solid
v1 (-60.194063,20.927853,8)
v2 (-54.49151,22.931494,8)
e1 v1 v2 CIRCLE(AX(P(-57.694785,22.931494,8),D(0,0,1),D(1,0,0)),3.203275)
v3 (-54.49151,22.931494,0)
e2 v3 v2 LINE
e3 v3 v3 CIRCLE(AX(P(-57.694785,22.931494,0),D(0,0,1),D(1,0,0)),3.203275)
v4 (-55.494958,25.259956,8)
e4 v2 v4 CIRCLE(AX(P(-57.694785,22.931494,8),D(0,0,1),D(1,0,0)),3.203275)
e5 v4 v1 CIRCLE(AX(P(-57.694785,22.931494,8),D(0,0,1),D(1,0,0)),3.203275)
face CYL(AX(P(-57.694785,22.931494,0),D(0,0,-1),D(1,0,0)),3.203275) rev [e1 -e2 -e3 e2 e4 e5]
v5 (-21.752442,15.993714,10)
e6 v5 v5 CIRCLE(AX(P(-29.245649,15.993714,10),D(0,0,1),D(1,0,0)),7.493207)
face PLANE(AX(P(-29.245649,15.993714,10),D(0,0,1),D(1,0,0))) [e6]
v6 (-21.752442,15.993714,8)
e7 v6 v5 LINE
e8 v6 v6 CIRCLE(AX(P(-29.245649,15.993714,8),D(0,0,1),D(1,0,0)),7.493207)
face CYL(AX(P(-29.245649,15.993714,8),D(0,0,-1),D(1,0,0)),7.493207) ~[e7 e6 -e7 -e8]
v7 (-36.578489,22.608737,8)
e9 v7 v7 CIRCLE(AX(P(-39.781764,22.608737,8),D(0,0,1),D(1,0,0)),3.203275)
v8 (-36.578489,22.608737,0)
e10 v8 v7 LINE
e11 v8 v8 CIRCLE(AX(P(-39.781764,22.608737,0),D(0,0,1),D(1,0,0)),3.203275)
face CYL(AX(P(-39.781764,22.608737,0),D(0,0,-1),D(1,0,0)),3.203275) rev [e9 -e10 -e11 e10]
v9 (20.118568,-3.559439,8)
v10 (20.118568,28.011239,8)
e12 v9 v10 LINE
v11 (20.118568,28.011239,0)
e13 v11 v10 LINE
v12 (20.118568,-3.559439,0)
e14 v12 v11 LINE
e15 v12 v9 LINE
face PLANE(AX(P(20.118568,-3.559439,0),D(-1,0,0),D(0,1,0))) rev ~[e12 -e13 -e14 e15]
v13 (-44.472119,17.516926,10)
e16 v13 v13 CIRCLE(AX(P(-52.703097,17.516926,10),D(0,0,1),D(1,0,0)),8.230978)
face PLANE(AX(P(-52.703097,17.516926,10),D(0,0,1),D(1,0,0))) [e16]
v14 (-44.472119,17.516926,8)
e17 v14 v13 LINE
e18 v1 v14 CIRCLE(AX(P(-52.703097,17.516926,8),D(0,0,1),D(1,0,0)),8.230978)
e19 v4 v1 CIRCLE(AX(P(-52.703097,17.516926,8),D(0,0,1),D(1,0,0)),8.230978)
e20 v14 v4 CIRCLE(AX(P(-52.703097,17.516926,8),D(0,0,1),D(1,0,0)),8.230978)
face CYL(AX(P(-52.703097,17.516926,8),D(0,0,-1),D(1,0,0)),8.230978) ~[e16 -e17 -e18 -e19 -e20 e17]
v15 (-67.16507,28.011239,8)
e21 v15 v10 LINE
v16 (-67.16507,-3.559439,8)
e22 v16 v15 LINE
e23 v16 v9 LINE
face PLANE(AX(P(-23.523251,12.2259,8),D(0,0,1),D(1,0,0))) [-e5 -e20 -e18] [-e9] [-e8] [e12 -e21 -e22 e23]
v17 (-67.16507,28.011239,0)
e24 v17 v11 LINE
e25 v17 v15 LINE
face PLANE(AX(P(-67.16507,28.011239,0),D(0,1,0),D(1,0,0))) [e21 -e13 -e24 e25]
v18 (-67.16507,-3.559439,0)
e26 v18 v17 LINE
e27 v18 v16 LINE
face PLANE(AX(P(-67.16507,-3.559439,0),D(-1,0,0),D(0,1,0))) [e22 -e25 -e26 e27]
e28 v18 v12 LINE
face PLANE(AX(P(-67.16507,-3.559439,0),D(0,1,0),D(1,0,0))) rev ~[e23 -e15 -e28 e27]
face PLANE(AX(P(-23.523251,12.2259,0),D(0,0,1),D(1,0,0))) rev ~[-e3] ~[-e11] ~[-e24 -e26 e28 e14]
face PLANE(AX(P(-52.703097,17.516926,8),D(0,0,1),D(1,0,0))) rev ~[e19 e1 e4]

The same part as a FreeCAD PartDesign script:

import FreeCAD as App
import Part
import Sketcher

V = App.Vector


def add_polygon(sketch, points):
    """Adds a closed chain of lines whose ends are joined by coincident constraints."""
    first, n = sketch.GeometryCount, len(points)
    for a, b in zip(points, points[1:] + points[:1]):
        sketch.addGeometry(Part.LineSegment(App.Vector(*a, 0), App.Vector(*b, 0)), False)
    for i in range(n):
        sketch.addConstraint(Sketcher.Constraint("Coincident", first + i, 2, first + (i + 1) % n, 1))

doc = App.newDocument("Part")
body = doc.addObject("PartDesign::Body", "Body")

sketch1 = body.newObject("Sketcher::SketchObject", "Sketch")
sketch1.AttachmentSupport = (doc.getObject("XY_Plane"), [""])
sketch1.MapMode = "FlatFace"
add_polygon(sketch1, [(-67.2, 28), (-67.2, -3.6), (20.1, -3.6), (20.1, 28)])
sketch1.addGeometry(Part.Circle(V(-39.8, 22.6, 0), V(0, 0, 1), 3.2), False)
sketch1.addGeometry(Part.Circle(V(-57.7, 22.9, 0), V(0, 0, 1), 3.2), False)
sketch1.addConstraint([
    Sketcher.Constraint("Vertical", 0),
    Sketcher.Constraint("Horizontal", 1),
    Sketcher.Constraint("Vertical", 2),
    Sketcher.Constraint("Horizontal", 3),
    Sketcher.Constraint("Equal", 4, 5),
    Sketcher.Constraint("Diameter", 4, 6.40655),
    Sketcher.Constraint("DistanceY", 0, 2, 0, 1, 31.570678),
    Sketcher.Constraint("DistanceY", 4, 3, 2, 2, 5.402502),
    Sketcher.Constraint("DistanceX", 1, 1, 1, 2, 87.283637),
    Sketcher.Constraint("DistanceX", 0, 2, -1, 1, 67.16507),
    Sketcher.Constraint("DistanceY", 0, 2, -1, 1, 3.559439),
    Sketcher.Constraint("DistanceX", 5, 3, 4, 3, 17.913021),
    Sketcher.Constraint("DistanceX", 4, 3, 1, 2, 59.900332),
    Sketcher.Constraint("DistanceY", -1, 1, 5, 3, 22.931494),
])
pad1 = body.newObject("PartDesign::Pad", "Pad")
pad1.Profile = sketch1
pad1.Length = 8

sketch2 = body.newObject("Sketcher::SketchObject", "Sketch001")
sketch2.AttachmentSupport = (doc.getObject("XY_Plane"), [""])
sketch2.MapMode = "FlatFace"
sketch2.AttachmentOffset = App.Placement(V(0, 0, 8), App.Rotation())
sketch2.addGeometry([
    Part.Circle(V(-53, 18, 0), V(0, 0, 1), 8),
    Part.Circle(V(-29, 16, 0), V(0, 0, 1), 7),
], False)
sketch2.addConstraint([
    Sketcher.Constraint("Diameter", 0, 16.461956),
    Sketcher.Constraint("Diameter", 1, 14.986414),
    Sketcher.Constraint("DistanceX", 1, 3, -1, 1, 29.245649),
    Sketcher.Constraint("DistanceX", 0, 3, -1, 1, 52.703097),
    Sketcher.Constraint("DistanceY", -1, 1, 0, 3, 17.516926),
    Sketcher.Constraint("DistanceY", -1, 1, 1, 3, 15.993714),
])
pad2 = body.newObject("PartDesign::Pad", "Pad001")
pad2.Profile = sketch2
pad2.Length = 2

doc.recompute()
